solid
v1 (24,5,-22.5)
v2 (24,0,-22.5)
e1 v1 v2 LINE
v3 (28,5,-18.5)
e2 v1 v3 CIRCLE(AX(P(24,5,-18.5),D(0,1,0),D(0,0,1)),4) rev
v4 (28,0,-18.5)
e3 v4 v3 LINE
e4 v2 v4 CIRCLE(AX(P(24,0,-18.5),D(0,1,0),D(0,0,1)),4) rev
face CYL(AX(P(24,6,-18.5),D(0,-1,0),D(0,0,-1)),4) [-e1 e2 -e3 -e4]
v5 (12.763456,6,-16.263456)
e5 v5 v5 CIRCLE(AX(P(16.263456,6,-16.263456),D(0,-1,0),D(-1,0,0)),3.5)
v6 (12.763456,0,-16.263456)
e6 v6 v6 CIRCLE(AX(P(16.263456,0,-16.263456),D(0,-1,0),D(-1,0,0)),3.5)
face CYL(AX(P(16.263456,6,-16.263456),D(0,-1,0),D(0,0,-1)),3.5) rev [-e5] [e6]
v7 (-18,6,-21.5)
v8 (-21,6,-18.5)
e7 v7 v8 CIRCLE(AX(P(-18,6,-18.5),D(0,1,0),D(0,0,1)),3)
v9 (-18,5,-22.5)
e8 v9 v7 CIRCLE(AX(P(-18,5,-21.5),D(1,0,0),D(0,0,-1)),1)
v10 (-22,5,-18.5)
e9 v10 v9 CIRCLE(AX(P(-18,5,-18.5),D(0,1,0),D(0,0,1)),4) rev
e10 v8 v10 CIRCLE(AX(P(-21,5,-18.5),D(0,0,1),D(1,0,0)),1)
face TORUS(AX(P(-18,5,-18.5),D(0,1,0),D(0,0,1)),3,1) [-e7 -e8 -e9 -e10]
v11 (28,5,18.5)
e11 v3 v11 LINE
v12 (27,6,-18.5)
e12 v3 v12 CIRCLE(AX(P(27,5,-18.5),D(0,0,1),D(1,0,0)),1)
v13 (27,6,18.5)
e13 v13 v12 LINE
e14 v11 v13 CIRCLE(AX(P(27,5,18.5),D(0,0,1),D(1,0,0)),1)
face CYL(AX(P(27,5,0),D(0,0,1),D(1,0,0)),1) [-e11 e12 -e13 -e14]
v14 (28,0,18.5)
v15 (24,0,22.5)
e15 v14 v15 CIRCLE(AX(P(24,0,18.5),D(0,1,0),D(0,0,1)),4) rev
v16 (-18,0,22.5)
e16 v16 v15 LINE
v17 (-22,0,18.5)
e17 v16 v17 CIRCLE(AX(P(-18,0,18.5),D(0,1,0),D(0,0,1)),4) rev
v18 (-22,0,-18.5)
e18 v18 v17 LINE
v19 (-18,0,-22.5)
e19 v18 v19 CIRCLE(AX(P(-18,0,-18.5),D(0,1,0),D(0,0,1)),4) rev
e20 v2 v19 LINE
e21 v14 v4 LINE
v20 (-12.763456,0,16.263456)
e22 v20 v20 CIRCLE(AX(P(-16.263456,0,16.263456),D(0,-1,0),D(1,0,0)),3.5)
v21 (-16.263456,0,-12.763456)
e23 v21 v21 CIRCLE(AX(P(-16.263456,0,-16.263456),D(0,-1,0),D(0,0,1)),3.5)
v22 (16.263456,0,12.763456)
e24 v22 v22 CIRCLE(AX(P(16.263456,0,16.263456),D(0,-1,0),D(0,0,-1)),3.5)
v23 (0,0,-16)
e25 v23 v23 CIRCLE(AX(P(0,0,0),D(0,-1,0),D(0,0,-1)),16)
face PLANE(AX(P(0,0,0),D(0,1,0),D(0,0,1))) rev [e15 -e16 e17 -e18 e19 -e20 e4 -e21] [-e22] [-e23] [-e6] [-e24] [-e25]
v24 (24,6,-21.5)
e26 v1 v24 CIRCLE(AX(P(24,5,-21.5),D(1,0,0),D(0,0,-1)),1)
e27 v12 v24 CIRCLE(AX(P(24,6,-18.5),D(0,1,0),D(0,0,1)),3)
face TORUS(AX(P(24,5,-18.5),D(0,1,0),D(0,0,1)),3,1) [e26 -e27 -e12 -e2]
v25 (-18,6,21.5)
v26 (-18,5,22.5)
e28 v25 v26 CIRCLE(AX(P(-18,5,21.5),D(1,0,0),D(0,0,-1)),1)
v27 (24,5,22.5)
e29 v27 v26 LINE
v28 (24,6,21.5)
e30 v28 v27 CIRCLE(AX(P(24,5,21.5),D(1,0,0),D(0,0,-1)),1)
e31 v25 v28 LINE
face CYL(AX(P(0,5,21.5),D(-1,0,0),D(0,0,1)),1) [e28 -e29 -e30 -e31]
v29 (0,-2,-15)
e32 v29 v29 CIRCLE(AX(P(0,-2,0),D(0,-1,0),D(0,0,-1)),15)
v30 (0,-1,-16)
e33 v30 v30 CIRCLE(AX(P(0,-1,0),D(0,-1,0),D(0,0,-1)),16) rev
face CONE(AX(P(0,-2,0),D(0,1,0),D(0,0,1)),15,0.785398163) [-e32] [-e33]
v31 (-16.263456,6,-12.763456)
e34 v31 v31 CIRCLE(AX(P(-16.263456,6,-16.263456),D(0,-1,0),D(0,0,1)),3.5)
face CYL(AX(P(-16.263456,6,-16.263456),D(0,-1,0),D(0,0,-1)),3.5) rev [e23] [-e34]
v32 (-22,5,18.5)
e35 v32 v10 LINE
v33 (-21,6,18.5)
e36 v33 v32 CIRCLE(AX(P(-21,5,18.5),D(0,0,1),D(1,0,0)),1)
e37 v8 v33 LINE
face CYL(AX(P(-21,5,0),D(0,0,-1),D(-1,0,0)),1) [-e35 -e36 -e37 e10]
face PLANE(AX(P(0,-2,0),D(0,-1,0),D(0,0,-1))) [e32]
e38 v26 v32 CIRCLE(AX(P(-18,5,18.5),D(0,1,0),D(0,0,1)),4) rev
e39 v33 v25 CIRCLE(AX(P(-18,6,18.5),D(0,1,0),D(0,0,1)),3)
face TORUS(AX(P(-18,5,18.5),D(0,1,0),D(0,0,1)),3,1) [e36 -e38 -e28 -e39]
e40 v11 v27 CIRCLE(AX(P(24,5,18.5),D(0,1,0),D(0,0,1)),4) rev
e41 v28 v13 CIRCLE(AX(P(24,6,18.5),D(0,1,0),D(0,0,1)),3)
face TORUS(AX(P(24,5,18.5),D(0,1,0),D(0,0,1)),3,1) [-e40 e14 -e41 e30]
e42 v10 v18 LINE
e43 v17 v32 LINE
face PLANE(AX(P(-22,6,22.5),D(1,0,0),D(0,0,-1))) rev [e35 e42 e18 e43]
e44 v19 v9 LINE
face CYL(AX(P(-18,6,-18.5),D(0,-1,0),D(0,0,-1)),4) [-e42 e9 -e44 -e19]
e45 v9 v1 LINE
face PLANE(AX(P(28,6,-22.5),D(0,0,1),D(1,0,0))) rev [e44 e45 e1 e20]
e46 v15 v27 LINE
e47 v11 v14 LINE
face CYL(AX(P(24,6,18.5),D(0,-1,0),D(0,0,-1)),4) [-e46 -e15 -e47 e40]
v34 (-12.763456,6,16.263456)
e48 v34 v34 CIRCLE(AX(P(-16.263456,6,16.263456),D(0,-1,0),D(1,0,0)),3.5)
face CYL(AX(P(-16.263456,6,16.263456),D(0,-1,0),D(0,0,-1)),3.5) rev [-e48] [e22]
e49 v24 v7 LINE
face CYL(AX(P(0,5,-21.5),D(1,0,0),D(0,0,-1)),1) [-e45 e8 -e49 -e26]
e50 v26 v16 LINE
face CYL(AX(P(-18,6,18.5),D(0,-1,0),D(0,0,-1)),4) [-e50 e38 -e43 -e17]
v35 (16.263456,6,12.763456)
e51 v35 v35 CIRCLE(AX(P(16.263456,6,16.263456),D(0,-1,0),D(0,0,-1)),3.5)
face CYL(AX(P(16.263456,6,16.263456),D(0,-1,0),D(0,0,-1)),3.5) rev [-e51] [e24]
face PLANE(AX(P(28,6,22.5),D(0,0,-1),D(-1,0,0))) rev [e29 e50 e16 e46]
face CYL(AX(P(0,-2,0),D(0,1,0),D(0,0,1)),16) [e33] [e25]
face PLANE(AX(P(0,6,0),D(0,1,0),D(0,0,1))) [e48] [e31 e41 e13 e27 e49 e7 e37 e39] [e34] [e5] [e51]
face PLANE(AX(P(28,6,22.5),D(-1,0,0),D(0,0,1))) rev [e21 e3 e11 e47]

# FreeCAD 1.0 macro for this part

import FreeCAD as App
import Part
import Sketcher
from FreeCAD import Vector
Q = App.Units.Quantity


def edges_at(feature, points):
    """Names of the edges that pass closest to the given points."""
    edges = feature.Shape.Edges
    near = lambda p: min(range(len(edges)), key=lambda i: edges[i].distToShape(Part.Vertex(*p))[0])
    return sorted({f"Edge{near(p) + 1}" for p in points})


def add_polygon(sketch, points):
    """Adds a closed chain of lines whose ends are joined by coincident constraints."""
    first, n = sketch.GeometryCount, len(points)
    for a, b in zip(points, points[1:] + points[:1]):
        sketch.addGeometry(Part.LineSegment(App.Vector(*a, 0), App.Vector(*b, 0)), False)
    for i in range(n):
        sketch.addConstraint(Sketcher.Constraint("Coincident", first + i, 2, first + (i + 1) % n, 1))

doc = App.newDocument("Part")
body = doc.addObject("PartDesign::Body", "Body")

sketch1 = body.newObject("Sketcher::SketchObject", "Sketch")
sketch1.AttachmentSupport = (doc.getObject("XZ_Plane"), [""])
sketch1.MapMode = "FlatFace"
add_polygon(sketch1, [(-22, -22), (-22, 22), (28, 22), (28, -22)])
sketch1.addConstraint([
    Sketcher.Constraint("Vertical", 0),
    Sketcher.Constraint("Horizontal", 1),
    Sketcher.Constraint("Vertical", 2),
    Sketcher.Constraint("Horizontal", 3),
    Sketcher.Constraint("DistanceX", 1, 1, 1, 2, Q("50 mm")),
    Sketcher.Constraint("DistanceY", 0, 1, 0, 2, Q("45 mm")),
    Sketcher.Constraint("DistanceX", 0, 2, -1, 1, Q("22 mm")),
    Sketcher.Constraint("DistanceY", -1, 1, 0, 2, Q("22.5 mm")),
])
pad1 = body.newObject("PartDesign::Pad", "Pad")
pad1.Profile = sketch1
pad1.Length = 6
pad1.Reversed = True

sketch2 = body.newObject("Sketcher::SketchObject", "Sketch001")
sketch2.AttachmentSupport = (doc.getObject("XZ_Plane"), [""])
sketch2.MapMode = "FlatFace"
sketch2.addGeometry(Part.Circle(Vector(0, 0, 0), Vector(0, 0, 1), 16), False)
sketch2.addConstraint([
    Sketcher.Constraint("Coincident", 0, 3, -1, 1),
    Sketcher.Constraint("Diameter", 0, Q("32 mm")),
])
pad2 = body.newObject("PartDesign::Pad", "Pad001")
pad2.Profile = sketch2
pad2.Length = 2
doc.recompute()

chamfer = body.newObject("PartDesign::Chamfer", "Chamfer")
chamfer.Base = (pad2, edges_at(pad2, [(-16, -2, 0)]))
chamfer.Size = 1

sketch3 = body.newObject("Sketcher::SketchObject", "Sketch002")
sketch3.AttachmentSupport = (doc.getObject("XZ_Plane"), [""])
sketch3.MapMode = "FlatFace"
sketch3.addGeometry(Part.Circle(Vector(16.3, 16.3, 0), Vector(0, 0, 1), 3.5), False)
sketch3.addConstraint([
    Sketcher.Constraint("Diameter", 0, Q("7 mm")),
    Sketcher.Constraint("DistanceX", -1, 1, 0, 3, Q("16.263456 mm")),
    Sketcher.Constraint("DistanceY", -1, 1, 0, 3, Q("16.263456 mm")),
])
pocket1 = body.newObject("PartDesign::Pocket", "Pocket")
pocket1.Profile = sketch3
pocket1.Type = "ThroughAll"
doc.recompute()

polarpattern = body.newObject("PartDesign::PolarPattern", "PolarPattern")
polarpattern.Originals = [pocket1]
polarpattern.Axis = (doc.getObject("Y_Axis"), [""])
polarpattern.Angle = 360
polarpattern.Occurrences = 4
body.Tip = polarpattern
doc.recompute()

fillet = body.newObject("PartDesign::Fillet", "Fillet")
fillet.Base = (polarpattern, edges_at(polarpattern, [
    (-22, 3, -22.5),
    (28, 3, -22.5),
    (28, 3, 22.5),
    (-22, 3, 22.5),
]))
fillet.Radius = 4
doc.recompute()

fillet2 = body.newObject("PartDesign::Fillet", "Fillet001")
fillet2.Base = (fillet, edges_at(fillet, [
    (-22, 6, 0),
    (3, 6, -22.5),
    (3, 6, 22.5),
    (28, 6, 0),
    (26.828, 6, 21.328),
    (-20.828, 6, 21.328),
    (26.828, 6, -21.328),
    (-20.828, 6, -21.328),
]))
fillet2.Radius = 1

doc.recompute()
